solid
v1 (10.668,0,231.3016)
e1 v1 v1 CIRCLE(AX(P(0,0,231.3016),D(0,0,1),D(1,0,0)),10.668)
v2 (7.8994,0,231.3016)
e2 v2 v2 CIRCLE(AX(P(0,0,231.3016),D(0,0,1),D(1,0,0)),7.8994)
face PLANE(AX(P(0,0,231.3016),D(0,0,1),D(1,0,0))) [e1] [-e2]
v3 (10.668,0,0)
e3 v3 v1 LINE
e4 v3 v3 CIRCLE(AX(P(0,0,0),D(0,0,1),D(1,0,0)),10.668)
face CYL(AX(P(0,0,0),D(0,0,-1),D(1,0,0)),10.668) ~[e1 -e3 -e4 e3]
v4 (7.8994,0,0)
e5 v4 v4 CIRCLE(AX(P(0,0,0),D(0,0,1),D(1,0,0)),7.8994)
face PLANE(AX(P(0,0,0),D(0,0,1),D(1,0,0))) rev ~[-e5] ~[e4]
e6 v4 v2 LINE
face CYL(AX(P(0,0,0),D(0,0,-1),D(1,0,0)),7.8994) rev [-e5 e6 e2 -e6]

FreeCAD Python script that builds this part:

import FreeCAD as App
import Part
import Sketcher
from FreeCAD import Vector
Q = App.Units.Quantity

doc = App.newDocument("Part")
body = doc.addObject("PartDesign::Body", "Body")

# Sketch on XY plane
sketch1 = body.newObject("Sketcher::SketchObject", "Sketch")
sketch1.AttachmentSupport = (doc.getObject("XY_Plane"), [""])
sketch1.MapMode = "FlatFace"
sketch1.addGeometry(Part.Circle(Vector(0, 0, 0), Vector(0, 0, 1), 11), False)
sketch1.addGeometry(Part.Circle(Vector(0, 0, 0), Vector(0, 0, 1), 8), False)
sketch1.addConstraint(Sketcher.Constraint("Coincident", 0, 3, -1, 1))
sketch1.addConstraint(Sketcher.Constraint("Coincident", 1, 3, -1, 1))
sketch1.addConstraint(Sketcher.Constraint("Diameter", 0, Q("0.84 in")))
sketch1.addConstraint(Sketcher.Constraint("Diameter", 1, Q("0.622 in")))
pad1 = body.newObject("PartDesign::Pad", "Pad")
pad1.Profile = sketch1
pad1.Length = 231.3016

doc.recompute()
